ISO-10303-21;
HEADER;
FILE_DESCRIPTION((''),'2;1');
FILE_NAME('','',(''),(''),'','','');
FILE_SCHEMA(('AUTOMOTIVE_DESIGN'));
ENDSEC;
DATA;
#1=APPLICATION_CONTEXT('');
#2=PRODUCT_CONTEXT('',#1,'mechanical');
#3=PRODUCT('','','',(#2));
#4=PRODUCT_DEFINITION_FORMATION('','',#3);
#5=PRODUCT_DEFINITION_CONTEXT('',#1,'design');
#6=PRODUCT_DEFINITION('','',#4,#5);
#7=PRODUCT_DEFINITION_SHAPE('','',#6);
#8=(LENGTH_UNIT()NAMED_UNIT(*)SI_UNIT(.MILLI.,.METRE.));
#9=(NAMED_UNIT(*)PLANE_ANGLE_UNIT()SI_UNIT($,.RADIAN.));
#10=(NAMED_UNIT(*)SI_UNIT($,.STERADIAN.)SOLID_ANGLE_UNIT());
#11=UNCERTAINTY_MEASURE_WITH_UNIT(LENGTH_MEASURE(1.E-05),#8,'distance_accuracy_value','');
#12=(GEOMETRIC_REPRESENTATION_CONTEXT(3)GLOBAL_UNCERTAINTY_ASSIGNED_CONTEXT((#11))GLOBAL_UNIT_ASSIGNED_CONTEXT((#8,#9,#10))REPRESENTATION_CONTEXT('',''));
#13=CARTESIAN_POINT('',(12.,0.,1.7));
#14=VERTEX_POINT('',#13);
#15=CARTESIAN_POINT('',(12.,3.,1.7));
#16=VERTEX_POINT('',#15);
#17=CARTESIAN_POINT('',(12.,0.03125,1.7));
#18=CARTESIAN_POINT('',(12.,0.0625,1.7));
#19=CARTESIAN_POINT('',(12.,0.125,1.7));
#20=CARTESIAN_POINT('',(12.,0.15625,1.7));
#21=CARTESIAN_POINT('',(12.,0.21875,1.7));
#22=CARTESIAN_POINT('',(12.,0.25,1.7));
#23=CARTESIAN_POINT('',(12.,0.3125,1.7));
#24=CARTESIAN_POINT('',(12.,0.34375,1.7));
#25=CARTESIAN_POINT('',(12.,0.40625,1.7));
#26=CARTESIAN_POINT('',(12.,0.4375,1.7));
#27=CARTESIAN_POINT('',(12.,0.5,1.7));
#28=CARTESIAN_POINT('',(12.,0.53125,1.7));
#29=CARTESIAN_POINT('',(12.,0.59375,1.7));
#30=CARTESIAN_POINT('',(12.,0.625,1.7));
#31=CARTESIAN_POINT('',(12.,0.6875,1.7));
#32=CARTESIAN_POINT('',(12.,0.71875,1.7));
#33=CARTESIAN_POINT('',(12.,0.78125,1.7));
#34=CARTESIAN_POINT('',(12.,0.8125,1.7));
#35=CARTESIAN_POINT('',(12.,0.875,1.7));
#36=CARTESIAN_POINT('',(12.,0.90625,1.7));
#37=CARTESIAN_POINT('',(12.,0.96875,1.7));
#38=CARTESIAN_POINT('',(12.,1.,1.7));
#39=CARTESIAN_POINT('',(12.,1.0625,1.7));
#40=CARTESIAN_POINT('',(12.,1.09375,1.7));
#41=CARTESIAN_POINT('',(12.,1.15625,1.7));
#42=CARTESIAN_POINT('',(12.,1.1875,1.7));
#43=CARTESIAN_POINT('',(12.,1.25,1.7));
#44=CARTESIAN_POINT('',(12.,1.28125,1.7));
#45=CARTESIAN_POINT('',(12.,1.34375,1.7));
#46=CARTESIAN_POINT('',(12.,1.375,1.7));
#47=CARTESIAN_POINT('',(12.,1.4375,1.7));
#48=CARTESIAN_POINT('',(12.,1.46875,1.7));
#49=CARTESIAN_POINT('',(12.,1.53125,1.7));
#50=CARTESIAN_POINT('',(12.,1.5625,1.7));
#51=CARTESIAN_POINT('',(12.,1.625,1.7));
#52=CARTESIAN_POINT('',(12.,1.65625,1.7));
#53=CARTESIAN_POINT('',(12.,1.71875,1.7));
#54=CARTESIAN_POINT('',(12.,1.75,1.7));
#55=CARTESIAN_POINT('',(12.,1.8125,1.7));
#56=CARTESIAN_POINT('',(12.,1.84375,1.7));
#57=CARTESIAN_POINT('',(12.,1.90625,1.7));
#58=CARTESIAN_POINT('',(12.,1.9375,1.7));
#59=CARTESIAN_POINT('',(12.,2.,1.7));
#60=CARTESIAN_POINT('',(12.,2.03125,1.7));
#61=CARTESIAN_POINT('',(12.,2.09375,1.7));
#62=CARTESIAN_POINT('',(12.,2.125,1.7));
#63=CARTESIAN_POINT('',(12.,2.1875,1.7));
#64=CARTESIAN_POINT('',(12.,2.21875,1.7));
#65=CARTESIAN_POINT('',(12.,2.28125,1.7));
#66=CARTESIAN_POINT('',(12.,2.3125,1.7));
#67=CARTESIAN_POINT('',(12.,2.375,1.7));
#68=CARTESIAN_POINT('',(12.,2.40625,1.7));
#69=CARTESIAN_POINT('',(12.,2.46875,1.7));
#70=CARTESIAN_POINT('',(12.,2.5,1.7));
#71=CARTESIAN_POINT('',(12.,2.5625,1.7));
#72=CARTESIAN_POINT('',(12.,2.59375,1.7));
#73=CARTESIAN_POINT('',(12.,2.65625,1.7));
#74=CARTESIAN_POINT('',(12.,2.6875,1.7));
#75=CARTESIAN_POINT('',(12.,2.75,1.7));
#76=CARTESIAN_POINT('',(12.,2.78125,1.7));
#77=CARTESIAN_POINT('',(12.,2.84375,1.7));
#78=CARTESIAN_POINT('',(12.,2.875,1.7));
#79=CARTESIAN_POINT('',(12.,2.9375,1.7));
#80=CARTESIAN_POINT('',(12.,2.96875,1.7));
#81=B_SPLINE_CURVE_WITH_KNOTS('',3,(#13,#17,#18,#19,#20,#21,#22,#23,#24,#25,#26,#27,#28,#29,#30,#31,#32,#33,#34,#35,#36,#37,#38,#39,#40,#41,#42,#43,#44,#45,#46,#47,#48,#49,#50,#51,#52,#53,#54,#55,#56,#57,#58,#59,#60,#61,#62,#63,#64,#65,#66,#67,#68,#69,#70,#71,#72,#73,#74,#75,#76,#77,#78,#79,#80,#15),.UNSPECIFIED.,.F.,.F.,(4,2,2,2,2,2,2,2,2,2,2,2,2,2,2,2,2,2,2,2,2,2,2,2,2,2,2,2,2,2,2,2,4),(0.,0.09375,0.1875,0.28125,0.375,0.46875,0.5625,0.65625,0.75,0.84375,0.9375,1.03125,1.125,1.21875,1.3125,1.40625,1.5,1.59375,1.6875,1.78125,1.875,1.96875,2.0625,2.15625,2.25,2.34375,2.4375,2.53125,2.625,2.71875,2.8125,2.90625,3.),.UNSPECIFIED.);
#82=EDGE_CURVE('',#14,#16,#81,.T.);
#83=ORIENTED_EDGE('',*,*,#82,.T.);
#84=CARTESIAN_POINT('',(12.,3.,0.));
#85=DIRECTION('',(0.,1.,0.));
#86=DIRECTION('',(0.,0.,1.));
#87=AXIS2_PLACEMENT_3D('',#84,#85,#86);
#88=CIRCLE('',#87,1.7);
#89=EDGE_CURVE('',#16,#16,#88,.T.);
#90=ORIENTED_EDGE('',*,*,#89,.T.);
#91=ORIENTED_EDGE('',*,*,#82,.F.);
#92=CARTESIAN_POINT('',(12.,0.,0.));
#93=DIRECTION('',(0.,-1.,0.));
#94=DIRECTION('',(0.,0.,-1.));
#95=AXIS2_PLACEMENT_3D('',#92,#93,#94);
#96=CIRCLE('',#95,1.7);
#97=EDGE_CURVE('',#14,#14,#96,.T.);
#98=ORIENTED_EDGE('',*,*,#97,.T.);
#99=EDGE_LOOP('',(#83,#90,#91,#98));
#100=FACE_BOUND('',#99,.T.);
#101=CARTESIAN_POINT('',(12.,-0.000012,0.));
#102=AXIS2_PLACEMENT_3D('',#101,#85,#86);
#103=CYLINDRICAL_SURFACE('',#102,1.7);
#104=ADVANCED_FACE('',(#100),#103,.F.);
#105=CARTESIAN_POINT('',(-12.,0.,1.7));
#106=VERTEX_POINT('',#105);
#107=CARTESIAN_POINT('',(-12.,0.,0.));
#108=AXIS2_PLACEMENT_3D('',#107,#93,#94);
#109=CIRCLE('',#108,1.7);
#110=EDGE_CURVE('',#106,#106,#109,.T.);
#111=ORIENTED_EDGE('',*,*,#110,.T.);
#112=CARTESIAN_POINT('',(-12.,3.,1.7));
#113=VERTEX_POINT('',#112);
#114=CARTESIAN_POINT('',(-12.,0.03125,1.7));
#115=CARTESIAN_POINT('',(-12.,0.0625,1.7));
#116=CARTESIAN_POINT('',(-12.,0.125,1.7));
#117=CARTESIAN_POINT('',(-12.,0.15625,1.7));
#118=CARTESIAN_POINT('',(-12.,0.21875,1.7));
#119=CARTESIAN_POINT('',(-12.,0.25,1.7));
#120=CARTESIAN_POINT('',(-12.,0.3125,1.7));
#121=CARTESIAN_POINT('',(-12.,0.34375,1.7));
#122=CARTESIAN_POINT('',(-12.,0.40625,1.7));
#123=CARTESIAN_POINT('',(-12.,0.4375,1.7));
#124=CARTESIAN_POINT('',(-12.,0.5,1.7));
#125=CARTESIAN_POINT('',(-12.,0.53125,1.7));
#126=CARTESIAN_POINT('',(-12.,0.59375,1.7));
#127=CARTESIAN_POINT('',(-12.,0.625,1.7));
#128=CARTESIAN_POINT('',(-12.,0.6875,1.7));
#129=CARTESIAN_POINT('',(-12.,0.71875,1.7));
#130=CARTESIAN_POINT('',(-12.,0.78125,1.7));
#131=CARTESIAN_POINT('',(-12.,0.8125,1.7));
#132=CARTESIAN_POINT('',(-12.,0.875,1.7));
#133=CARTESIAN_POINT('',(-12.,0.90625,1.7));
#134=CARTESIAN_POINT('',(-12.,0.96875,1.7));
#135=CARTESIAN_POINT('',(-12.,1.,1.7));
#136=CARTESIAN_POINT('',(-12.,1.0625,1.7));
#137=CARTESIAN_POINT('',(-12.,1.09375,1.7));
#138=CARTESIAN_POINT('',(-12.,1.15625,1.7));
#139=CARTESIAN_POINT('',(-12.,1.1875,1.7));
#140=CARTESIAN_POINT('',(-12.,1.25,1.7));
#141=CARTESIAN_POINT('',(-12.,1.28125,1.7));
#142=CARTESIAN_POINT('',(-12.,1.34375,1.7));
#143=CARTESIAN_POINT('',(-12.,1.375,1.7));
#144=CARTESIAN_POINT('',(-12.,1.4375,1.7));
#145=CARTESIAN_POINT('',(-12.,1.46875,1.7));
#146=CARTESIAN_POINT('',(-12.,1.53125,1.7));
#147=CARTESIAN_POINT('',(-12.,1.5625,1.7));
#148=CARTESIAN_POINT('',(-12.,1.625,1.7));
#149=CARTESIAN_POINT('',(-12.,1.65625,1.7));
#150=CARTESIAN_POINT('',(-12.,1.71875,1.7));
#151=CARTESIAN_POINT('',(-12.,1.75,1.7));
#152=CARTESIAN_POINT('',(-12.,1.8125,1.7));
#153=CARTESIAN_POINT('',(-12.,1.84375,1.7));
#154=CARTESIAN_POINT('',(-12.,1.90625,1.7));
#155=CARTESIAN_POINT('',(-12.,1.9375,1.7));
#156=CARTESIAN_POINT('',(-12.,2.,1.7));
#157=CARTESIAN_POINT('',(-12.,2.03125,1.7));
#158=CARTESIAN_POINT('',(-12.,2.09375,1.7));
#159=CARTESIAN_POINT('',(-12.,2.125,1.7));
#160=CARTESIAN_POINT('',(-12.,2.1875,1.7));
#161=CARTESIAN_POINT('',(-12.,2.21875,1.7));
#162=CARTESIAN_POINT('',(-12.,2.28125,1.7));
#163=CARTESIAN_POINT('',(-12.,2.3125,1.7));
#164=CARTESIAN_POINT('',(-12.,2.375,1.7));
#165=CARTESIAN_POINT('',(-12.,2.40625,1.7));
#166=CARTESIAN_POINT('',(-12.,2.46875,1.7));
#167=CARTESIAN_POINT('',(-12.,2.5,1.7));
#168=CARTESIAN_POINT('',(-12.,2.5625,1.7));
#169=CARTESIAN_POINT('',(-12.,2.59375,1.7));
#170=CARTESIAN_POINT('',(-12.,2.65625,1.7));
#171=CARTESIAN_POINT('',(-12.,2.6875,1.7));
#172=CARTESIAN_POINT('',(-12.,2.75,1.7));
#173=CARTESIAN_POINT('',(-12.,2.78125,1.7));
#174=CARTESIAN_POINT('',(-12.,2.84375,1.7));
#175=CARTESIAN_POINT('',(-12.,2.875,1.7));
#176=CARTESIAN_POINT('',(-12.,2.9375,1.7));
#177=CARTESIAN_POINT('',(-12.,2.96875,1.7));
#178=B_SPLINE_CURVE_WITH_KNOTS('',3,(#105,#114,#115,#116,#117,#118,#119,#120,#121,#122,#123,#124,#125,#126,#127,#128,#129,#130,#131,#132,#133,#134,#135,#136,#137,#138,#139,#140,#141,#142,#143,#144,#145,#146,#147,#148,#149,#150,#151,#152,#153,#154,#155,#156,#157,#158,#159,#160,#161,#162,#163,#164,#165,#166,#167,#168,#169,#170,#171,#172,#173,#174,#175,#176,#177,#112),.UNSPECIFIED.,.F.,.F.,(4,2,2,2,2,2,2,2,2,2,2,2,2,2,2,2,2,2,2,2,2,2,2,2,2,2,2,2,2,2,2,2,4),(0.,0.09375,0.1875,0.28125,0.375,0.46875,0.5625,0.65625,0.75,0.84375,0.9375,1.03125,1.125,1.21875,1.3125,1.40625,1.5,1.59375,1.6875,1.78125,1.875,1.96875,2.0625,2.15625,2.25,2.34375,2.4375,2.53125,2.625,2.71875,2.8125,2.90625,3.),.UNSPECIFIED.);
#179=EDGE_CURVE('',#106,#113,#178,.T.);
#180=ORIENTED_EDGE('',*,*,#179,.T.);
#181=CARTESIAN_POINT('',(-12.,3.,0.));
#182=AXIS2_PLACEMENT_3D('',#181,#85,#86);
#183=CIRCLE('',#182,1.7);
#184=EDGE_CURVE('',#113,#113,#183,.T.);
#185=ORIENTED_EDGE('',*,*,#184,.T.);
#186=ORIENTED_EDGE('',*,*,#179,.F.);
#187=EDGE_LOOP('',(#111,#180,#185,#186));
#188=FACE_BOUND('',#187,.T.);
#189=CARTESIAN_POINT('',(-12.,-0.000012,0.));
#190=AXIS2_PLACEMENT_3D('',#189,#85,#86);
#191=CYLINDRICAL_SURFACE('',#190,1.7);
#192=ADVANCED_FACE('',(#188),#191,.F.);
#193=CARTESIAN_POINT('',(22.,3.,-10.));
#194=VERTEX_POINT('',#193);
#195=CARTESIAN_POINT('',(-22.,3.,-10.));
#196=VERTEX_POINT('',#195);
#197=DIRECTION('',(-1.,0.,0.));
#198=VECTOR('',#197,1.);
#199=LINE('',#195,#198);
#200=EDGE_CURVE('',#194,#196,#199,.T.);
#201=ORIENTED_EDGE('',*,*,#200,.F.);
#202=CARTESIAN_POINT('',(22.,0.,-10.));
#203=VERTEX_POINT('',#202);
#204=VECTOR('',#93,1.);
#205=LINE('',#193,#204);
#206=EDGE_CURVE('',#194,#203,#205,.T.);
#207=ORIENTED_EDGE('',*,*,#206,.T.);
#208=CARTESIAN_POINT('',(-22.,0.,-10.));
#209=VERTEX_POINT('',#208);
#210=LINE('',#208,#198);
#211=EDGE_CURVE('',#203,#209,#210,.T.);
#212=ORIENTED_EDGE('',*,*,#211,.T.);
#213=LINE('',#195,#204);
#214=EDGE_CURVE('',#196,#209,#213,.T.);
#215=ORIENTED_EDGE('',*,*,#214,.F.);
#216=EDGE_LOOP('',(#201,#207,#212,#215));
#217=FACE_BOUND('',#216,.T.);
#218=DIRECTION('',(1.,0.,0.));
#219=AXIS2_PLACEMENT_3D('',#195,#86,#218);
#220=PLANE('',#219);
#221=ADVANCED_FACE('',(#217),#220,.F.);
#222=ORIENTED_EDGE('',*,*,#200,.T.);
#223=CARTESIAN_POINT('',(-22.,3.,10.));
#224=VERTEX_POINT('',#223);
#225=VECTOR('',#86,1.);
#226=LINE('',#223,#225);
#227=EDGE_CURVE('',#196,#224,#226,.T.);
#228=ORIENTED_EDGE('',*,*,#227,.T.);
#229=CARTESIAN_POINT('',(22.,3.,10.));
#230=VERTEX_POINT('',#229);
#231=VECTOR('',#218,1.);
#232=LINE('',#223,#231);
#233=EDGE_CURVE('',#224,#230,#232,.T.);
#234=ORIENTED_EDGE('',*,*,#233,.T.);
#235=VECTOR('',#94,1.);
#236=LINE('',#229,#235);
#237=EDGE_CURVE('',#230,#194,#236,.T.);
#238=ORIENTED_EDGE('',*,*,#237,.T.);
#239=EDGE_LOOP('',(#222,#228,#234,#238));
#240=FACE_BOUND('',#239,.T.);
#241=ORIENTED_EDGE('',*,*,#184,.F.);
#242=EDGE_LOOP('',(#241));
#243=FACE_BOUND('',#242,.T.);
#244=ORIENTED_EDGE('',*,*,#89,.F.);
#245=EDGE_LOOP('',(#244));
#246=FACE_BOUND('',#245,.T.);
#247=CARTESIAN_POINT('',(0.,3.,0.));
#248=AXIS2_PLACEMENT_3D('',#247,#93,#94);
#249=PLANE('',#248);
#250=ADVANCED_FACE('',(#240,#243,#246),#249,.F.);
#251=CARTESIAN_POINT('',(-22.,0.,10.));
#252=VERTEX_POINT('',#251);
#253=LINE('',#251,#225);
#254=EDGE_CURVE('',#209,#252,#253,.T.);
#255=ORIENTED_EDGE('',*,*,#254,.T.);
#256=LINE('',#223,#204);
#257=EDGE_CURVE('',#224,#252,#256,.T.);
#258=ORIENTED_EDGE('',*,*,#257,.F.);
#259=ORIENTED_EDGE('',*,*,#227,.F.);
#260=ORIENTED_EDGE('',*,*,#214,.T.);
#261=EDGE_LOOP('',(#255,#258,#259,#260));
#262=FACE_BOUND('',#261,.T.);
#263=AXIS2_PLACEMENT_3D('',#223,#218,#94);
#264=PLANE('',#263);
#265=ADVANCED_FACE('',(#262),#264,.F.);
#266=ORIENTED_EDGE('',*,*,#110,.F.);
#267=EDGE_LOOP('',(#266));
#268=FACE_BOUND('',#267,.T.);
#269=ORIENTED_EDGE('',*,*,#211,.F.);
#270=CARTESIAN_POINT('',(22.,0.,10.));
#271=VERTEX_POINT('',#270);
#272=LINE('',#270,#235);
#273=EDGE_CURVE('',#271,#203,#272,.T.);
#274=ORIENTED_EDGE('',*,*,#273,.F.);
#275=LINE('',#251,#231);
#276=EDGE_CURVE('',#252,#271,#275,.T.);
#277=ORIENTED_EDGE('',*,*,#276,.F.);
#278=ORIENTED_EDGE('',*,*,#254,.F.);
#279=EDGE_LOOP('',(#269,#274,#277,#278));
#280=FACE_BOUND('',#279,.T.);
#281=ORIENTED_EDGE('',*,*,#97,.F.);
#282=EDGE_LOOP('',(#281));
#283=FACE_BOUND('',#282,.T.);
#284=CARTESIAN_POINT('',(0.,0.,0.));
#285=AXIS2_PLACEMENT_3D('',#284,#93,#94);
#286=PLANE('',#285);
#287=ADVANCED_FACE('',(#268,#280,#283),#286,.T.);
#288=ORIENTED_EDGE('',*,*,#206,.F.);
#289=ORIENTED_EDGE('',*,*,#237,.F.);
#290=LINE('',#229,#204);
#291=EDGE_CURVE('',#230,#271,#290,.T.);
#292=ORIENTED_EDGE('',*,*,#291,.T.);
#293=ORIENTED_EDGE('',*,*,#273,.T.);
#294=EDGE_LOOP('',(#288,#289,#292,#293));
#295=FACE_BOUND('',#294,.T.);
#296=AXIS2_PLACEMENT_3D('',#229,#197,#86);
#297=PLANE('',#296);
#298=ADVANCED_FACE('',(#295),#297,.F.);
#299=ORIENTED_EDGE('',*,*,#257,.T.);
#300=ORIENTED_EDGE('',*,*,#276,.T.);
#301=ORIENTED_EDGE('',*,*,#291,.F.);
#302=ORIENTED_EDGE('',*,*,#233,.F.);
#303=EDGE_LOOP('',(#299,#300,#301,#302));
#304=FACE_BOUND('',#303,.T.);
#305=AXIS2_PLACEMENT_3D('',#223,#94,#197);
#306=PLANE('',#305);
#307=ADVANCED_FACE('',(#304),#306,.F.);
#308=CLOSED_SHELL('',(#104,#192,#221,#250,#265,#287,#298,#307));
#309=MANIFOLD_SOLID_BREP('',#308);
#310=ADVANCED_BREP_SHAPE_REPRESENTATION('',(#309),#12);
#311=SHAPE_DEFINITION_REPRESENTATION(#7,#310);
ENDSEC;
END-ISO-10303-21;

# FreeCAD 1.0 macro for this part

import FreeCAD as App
import Part
import Sketcher

V = App.Vector


def add_polygon(sketch, points):
    """Adds a closed chain of lines whose ends are joined by coincident constraints."""
    first, n = sketch.GeometryCount, len(points)
    for a, b in zip(points, points[1:] + points[:1]):
        sketch.addGeometry(Part.LineSegment(App.Vector(*a, 0), App.Vector(*b, 0)), False)
    for i in range(n):
        sketch.addConstraint(Sketcher.Constraint("Coincident", first + i, 2, first + (i + 1) % n, 1))

doc = App.newDocument("Part")
body = doc.addObject("PartDesign::Body", "Body")

sketch1 = body.newObject("Sketcher::SketchObject", "Sketch")
sketch1.AttachmentSupport = (doc.getObject("XZ_Plane"), [""])
sketch1.MapMode = "FlatFace"
add_polygon(sketch1, [(-22, -10), (-22, 10), (22, 10), (22, -10)])
sketch1.addConstraint(Sketcher.Constraint("Vertical", 0))
sketch1.addConstraint(Sketcher.Constraint("Horizontal", 1))
sketch1.addConstraint(Sketcher.Constraint("Vertical", 2))
sketch1.addConstraint(Sketcher.Constraint("Horizontal", 3))
sketch1.addConstraint(Sketcher.Constraint("Symmetric", 0, 2, 2, 2, -1, 1))
sketch1.addConstraint(Sketcher.Constraint("DistanceX", 1, 1, 1, 2, 44.0))
sketch1.addConstraint(Sketcher.Constraint("DistanceY", 0, 1, 0, 2, 20.0))
pad1 = body.newObject("PartDesign::Pad", "Pad")
pad1.Profile = sketch1
pad1.Length = 3
pad1.Reversed = True

sketch2 = body.newObject("Sketcher::SketchObject", "Sketch001")
sketch2.AttachmentSupport = (doc.getObject("XZ_Plane"), [""])
sketch2.MapMode = "FlatFace"
sketch2.addGeometry(Part.Circle(V(-12, 0, 0), V(0, 0, 1), 1.7), False)
sketch2.addGeometry(Part.Circle(V(12, 0, 0), V(0, 0, 1), 1.7), False)
sketch2.addConstraint(Sketcher.Constraint("Equal", 0, 1))
sketch2.addConstraint(Sketcher.Constraint("Symmetric", 0, 3, 1, 3, -1, 1))
sketch2.addConstraint(Sketcher.Constraint("PointOnObject", 0, 3, -1))
sketch2.addConstraint(Sketcher.Constraint("Diameter", 0, 3.4))
sketch2.addConstraint(Sketcher.Constraint("DistanceX", 0, 3, -1, 1, 12.0))
pocket1 = body.newObject("PartDesign::Pocket", "Pocket")
pocket1.Profile = sketch2
pocket1.Type = "ThroughAll"
pocket1.Midplane = True

doc.recompute()
